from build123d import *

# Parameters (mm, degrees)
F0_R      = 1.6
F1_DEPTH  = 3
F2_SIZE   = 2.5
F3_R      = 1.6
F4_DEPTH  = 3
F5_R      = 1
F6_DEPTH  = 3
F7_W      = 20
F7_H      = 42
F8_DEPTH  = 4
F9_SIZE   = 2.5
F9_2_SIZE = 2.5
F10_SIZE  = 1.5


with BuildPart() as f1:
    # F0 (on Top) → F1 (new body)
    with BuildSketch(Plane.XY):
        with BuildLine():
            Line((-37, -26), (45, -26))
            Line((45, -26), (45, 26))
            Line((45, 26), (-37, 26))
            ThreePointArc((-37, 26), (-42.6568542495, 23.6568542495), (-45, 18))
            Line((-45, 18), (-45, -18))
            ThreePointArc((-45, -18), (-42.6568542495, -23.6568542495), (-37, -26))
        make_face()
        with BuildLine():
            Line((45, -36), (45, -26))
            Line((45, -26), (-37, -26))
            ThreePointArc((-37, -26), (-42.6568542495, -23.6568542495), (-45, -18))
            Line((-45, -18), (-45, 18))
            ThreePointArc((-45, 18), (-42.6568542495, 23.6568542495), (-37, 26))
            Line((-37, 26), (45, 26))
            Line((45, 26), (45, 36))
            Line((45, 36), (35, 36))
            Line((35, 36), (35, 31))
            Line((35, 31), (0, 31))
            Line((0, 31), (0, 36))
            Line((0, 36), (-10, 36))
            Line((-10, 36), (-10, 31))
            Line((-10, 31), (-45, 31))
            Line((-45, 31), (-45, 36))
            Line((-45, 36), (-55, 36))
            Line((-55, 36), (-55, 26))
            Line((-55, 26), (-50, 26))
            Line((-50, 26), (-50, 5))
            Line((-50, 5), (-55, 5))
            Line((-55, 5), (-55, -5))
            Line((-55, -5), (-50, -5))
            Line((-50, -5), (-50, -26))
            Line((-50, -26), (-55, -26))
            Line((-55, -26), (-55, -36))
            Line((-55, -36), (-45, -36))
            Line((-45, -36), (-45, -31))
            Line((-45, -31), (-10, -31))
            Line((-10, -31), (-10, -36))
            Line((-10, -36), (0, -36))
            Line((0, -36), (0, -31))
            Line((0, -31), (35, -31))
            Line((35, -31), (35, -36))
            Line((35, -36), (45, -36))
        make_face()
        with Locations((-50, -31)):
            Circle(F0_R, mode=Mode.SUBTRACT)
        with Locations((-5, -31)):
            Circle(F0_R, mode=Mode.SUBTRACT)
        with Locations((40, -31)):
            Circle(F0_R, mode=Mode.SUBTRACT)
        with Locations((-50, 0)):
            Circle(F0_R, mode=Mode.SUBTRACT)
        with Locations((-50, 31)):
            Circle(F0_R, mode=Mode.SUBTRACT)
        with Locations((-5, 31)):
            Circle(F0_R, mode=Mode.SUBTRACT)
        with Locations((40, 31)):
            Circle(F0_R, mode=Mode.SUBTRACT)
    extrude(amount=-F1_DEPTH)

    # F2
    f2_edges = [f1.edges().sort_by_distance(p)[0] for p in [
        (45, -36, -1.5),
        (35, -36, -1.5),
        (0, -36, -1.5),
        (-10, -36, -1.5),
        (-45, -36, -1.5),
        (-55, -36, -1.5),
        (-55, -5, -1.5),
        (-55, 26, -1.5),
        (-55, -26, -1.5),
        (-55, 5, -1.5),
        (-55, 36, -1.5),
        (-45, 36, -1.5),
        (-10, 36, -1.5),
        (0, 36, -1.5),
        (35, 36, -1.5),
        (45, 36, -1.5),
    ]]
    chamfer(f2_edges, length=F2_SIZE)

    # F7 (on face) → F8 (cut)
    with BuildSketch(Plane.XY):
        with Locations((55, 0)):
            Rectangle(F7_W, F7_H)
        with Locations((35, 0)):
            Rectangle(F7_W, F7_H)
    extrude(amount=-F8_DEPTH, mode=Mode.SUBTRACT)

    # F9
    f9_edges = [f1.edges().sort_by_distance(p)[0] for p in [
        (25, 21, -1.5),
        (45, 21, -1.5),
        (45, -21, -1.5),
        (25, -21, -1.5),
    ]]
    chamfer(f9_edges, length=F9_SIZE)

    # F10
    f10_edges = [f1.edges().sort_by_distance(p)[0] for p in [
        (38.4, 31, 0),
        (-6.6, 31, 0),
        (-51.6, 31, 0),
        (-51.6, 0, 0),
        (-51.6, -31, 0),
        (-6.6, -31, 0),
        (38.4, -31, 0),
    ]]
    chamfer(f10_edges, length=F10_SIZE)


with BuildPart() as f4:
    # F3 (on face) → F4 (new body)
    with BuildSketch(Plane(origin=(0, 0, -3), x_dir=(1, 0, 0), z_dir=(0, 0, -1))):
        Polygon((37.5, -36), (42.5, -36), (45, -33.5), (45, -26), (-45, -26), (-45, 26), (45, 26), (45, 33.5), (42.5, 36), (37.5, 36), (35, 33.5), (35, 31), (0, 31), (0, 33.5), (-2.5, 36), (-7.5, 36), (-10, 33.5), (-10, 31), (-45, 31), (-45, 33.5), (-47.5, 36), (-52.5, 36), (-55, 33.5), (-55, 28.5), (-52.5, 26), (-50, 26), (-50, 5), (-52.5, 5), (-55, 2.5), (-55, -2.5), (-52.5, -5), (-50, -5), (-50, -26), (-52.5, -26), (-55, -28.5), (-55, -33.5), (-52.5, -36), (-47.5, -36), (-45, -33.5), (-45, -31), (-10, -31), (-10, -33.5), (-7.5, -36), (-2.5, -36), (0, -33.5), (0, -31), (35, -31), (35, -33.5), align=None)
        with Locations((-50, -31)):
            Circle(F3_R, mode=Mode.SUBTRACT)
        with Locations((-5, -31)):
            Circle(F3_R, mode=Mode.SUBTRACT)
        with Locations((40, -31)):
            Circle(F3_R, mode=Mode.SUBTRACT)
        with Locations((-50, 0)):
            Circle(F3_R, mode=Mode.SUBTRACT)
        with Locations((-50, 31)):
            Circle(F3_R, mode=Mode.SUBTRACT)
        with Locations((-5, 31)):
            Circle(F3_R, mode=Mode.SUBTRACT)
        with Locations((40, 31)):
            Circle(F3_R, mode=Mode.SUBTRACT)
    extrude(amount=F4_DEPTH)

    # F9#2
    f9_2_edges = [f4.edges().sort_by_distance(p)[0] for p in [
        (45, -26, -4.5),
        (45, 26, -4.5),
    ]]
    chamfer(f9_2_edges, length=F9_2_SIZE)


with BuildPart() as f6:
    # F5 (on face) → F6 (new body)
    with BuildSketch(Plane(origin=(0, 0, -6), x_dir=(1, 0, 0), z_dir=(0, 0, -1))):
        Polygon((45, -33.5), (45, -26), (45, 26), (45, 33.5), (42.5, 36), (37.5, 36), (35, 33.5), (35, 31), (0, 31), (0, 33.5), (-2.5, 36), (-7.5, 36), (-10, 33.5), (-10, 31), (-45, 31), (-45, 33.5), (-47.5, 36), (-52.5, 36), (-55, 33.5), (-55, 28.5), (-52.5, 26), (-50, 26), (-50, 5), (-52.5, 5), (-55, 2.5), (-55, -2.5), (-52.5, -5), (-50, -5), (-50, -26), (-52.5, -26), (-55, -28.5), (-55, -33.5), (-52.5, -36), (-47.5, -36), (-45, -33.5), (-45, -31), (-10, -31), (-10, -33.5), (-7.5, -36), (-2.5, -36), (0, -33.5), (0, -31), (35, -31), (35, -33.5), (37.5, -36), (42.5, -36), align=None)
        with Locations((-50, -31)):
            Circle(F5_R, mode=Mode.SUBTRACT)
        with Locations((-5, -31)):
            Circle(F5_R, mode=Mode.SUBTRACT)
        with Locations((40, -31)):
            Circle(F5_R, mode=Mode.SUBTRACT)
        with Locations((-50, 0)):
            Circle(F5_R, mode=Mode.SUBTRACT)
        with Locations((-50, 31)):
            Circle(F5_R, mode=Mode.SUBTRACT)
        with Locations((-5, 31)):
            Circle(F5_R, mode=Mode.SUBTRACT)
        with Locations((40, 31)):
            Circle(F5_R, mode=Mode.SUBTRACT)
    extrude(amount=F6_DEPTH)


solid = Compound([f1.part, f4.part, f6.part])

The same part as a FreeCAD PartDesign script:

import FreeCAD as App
import Part
import Sketcher
from FreeCAD import Vector


def edges_at(feature, points):
    """Names of the edges that pass closest to the given points."""
    edges = feature.Shape.Edges
    near = lambda p: min(range(len(edges)), key=lambda i: edges[i].distToShape(Part.Vertex(*p))[0])
    return sorted({f"Edge{near(p) + 1}" for p in points})


def add_polygon(sketch, points):
    """Adds a closed chain of lines whose ends are joined by coincident constraints."""
    first, n = sketch.GeometryCount, len(points)
    for a, b in zip(points, points[1:] + points[:1]):
        sketch.addGeometry(Part.LineSegment(App.Vector(*a, 0), App.Vector(*b, 0)), False)
    for i in range(n):
        sketch.addConstraint(Sketcher.Constraint("Coincident", first + i, 2, first + (i + 1) % n, 1))

doc = App.newDocument("Part")
params = doc.addObject("Spreadsheet::Sheet", "Params")
for row, (alias, value) in enumerate([
    ("sketch1_diameter", "3.2 mm"),
    ("sketch1_width", "10 mm"),
    ("sketch1_width2", "35 mm"),
    ("sketch1_width3", "5 mm"),
    ("sketch1_height", "21 mm"),
    ("pad1_length", "3 mm"),
    ("chamfer_size", "2.5 mm"),
    ("sketch2_width", "40 mm"),
    ("sketch2_height", "42 mm"),
    ("pocket1_length", "4 mm"),
    ("chamfer2_size", "2.5 mm"),
    ("chamfer3_size", "1.5 mm"),
    ("sketch3_diameter", "3.2 mm"),
    ("sketch3_width", "5 mm"),
    ("sketch3_width2", "90 mm"),
    ("sketch3_width3", "35 mm"),
    ("sketch3_height", "52 mm"),
    ("pad2_length", "3 mm"),
    ("chamfer4_size", "2.5 mm"),
    ("sketch4_diameter", "2 mm"),
    ("sketch4_width", "5 mm"),
    ("sketch4_width2", "35 mm"),
    ("sketch4_height", "67 mm"),
    ("sketch4_height2", "21 mm"),
    ("pad3_length", "3 mm"),
], start=1):
    params.set(f"A{row}", alias)
    params.set(f"B{row}", "=" + value)
    params.setAlias(f"B{row}", alias)

body = doc.addObject("PartDesign::Body", "Body")

# Sketch on XY plane
sketch1 = body.newObject("Sketcher::SketchObject", "Sketch")
sketch1.AttachmentSupport = (doc.getObject("XY_Plane"), [""])
sketch1.MapMode = "FlatFace"
add_polygon(sketch1, [(45, 36), (35, 36), (35, 31), (0, 31), (0, 36), (-10, 36), (-10, 31), (-45, 31), (-45, 36), (-55, 36), (-55, 26), (-50, 26), (-50, 5), (-55, 5), (-55, -5), (-50, -5), (-50, -26), (-55, -26), (-55, -36), (-45, -36), (-45, -31), (-10, -31), (-10, -36), (0, -36), (0, -31), (35, -31), (35, -36), (45, -36)])  # lines 0-27
sketch1.addGeometry(Part.Circle(Vector(-50, -31, 0), Vector(0, 0, 1), 1.6), False)  # 28
sketch1.addGeometry(Part.Circle(Vector(-5, -31, 0), Vector(0, 0, 1), 1.6), False)  # 29
sketch1.addGeometry(Part.Circle(Vector(40, -31, 0), Vector(0, 0, 1), 1.6), False)  # 30
sketch1.addGeometry(Part.Circle(Vector(-50, 0, 0), Vector(0, 0, 1), 1.6), False)  # 31
sketch1.addGeometry(Part.Circle(Vector(-50, 31, 0), Vector(0, 0, 1), 1.6), False)  # 32
sketch1.addGeometry(Part.Circle(Vector(-5, 31, 0), Vector(0, 0, 1), 1.6), False)  # 33
sketch1.addGeometry(Part.Circle(Vector(40, 31, 0), Vector(0, 0, 1), 1.6), False)  # 34
sketch1.addConstraint([
    Sketcher.Constraint("Horizontal", 0),
    Sketcher.Constraint("Vertical", 1),
    Sketcher.Constraint("Horizontal", 2),
    Sketcher.Constraint("Vertical", 3),
    Sketcher.Constraint("Horizontal", 4),
    Sketcher.Constraint("Vertical", 5),
    Sketcher.Constraint("Horizontal", 6),
    Sketcher.Constraint("Vertical", 7),
    Sketcher.Constraint("Horizontal", 8),
    Sketcher.Constraint("Vertical", 9),
    Sketcher.Constraint("Horizontal", 10),
    Sketcher.Constraint("Vertical", 11),
    Sketcher.Constraint("Horizontal", 12),
    Sketcher.Constraint("Vertical", 13),
    Sketcher.Constraint("Horizontal", 14),
    Sketcher.Constraint("Vertical", 15),
    Sketcher.Constraint("Horizontal", 16),
    Sketcher.Constraint("Vertical", 17),
    Sketcher.Constraint("Horizontal", 18),
    Sketcher.Constraint("Vertical", 19),
    Sketcher.Constraint("Horizontal", 20),
    Sketcher.Constraint("Vertical", 21),
    Sketcher.Constraint("Horizontal", 22),
    Sketcher.Constraint("Vertical", 23),
    Sketcher.Constraint("Horizontal", 24),
    Sketcher.Constraint("Vertical", 25),
    Sketcher.Constraint("Horizontal", 26),
    Sketcher.Constraint("Vertical", 27),
    Sketcher.Constraint("Equal", 28, 29),
    Sketcher.Constraint("Equal", 29, 30),
    Sketcher.Constraint("Equal", 30, 31),
    Sketcher.Constraint("Equal", 31, 32),
    Sketcher.Constraint("Equal", 32, 33),
    Sketcher.Constraint("Equal", 33, 34),
    Sketcher.Constraint("Symmetric", 3, 2, 22, 2, -1, 1),
    Sketcher.Constraint("Symmetric", 7, 2, 26, 2, -1, 1),
    Sketcher.Constraint("Symmetric", 18, 2, 27, 2, -1, 1),
    Sketcher.Constraint("Symmetric", 28, 3, 32, 3, -1),
    Sketcher.Constraint("Symmetric", 29, 3, 33, 3, -1),
    Sketcher.Constraint("Symmetric", 30, 3, 34, 3, -1),
    Sketcher.Constraint("Symmetric", 11, 2, 14, 2, -1),
    Sketcher.Constraint("Symmetric", 9, 2, 16, 2, -1),
    Sketcher.Constraint("Symmetric", 5, 2, 20, 2, -1),
    Sketcher.Constraint("Symmetric", 2, 2, 23, 2, -1),
    Sketcher.Constraint("Symmetric", 0, 2, 25, 2, -1),
    Sketcher.Constraint("PointOnObject", 31, 3, -1),
    Sketcher.Constraint("Horizontal", 28, 3, 29, 3),
    Sketcher.Constraint("Horizontal", 29, 3, 30, 3),
    Sketcher.Constraint("Horizontal", 34, 3, 1, 2),
    Sketcher.Constraint("Horizontal", 0, 2, 3, 2),
    Sketcher.Constraint("Horizontal", 2, 2, 5, 2),
    Sketcher.Constraint("Vertical", 28, 3, 31, 3),
    Sketcher.Constraint("Vertical", 32, 3, 10, 2),
    Sketcher.Constraint("Vertical", 9, 2, 12, 2),
    Sketcher.Constraint("Equal", 0, 4),
    Sketcher.Constraint("Equal", 4, 8),
    Sketcher.Constraint("Equal", 16, 1),
    Sketcher.Constraint("Equal", 26, 9),
    Sketcher.Constraint("Equal", 9, 13),
    Sketcher.Constraint("Diameter", 28, 3.2),
    Sketcher.Constraint("DistanceX", 0, 2, 0, 1, 10.0),
    Sketcher.Constraint("DistanceX", 2, 2, 2, 1, 35.0),
    Sketcher.Constraint("DistanceX", 10, 1, 10, 2, 5.0),
    Sketcher.Constraint("DistanceY", 11, 2, 11, 1, 21.0),
    Sketcher.Constraint("DistanceX", 29, 3, -1, 1, 5.0),
    Sketcher.Constraint("DistanceX", -1, 1, 30, 3, 40.0),
])
sketch1.setExpression("Constraints[87]", "Params.sketch1_diameter")
sketch1.setExpression("Constraints[88]", "Params.sketch1_width")
sketch1.setExpression("Constraints[89]", "Params.sketch1_width2")
sketch1.setExpression("Constraints[90]", "Params.sketch1_width3")
sketch1.setExpression("Constraints[91]", "Params.sketch1_height")
pad1 = body.newObject("PartDesign::Pad", "Pad")
pad1.Profile = sketch1
pad1.setExpression("Length", "Params.pad1_length")
pad1.Reversed = True
doc.recompute()

chamfer = body.newObject("PartDesign::Chamfer", "Chamfer")
chamfer.Base = (pad1, edges_at(pad1, [
    (45, -36, -1.5),
    (35, -36, -1.5),
    (0, -36, -1.5),
    (-10, -36, -1.5),
    (-45, -36, -1.5),
    (-55, -36, -1.5),
    (-55, -5, -1.5),
    (-55, 26, -1.5),
    (-55, -26, -1.5),
    (-55, 5, -1.5),
    (-55, 36, -1.5),
    (-45, 36, -1.5),
    (-10, 36, -1.5),
    (0, 36, -1.5),
    (35, 36, -1.5),
    (45, 36, -1.5),
]))
chamfer.setExpression("Size", "Params.chamfer_size")

# Sketch on XY plane
sketch2 = body.newObject("Sketcher::SketchObject", "Sketch001")
sketch2.AttachmentSupport = (doc.getObject("XY_Plane"), [""])
sketch2.MapMode = "FlatFace"
add_polygon(sketch2, [(65, -21), (65, 21), (25, 21), (25, -21)])  # lines 0-3
sketch2.addConstraint([
    Sketcher.Constraint("Vertical", 0),
    Sketcher.Constraint("Horizontal", 1),
    Sketcher.Constraint("Vertical", 2),
    Sketcher.Constraint("Horizontal", 3),
    Sketcher.Constraint("DistanceX", 1, 2, 1, 1, 40.0),
    Sketcher.Constraint("DistanceY", 0, 1, 0, 2, 42.0),
    Sketcher.Constraint("DistanceX", -1, 1, 0, 2, 65.0),
    Sketcher.Constraint("DistanceY", -1, 1, 0, 2, 21.0),
])
sketch2.setExpression("Constraints[8]", "Params.sketch2_width")
sketch2.setExpression("Constraints[9]", "Params.sketch2_height")
pocket1 = body.newObject("PartDesign::Pocket", "Pocket")
pocket1.Profile = sketch2
pocket1.setExpression("Length", "Params.pocket1_length")
doc.recompute()

chamfer2 = body.newObject("PartDesign::Chamfer", "Chamfer001")
chamfer2.Base = (pocket1, edges_at(pocket1, [
    (25, 21, -1.5),
    (45, 21, -1.5),
    (45, -21, -1.5),
    (25, -21, -1.5),
]))
chamfer2.setExpression("Size", "Params.chamfer2_size")
doc.recompute()

chamfer3 = body.newObject("PartDesign::Chamfer", "Chamfer002")
chamfer3.Base = (chamfer2, edges_at(chamfer2, [
    (38.4, 31, 0),
    (-6.6, 31, 0),
    (-51.6, 31, 0),
    (-51.6, 0, 0),
    (-51.6, -31, 0),
    (-6.6, -31, 0),
    (38.4, -31, 0),
]))
chamfer3.setExpression("Size", "Params.chamfer3_size")
body2 = doc.addObject("PartDesign::Body", "Body001")

# Sketch on XY plane
sketch3 = body2.newObject("Sketcher::SketchObject", "Sketch002")
sketch3.AttachmentSupport = (doc.getObject("XY_Plane001"), [""])
sketch3.MapMode = "FlatFace"
sketch3.AttachmentOffset = App.Placement(Vector(0, 0, -3), App.Rotation())
add_polygon(sketch3, [(37.5, 36), (42.5, 36), (45, 33.5), (45, 26), (-45, 26), (-45, -26), (45, -26), (45, -33.5), (42.5, -36), (37.5, -36), (35, -33.5), (35, -31), (0, -31), (0, -33.5), (-2.5, -36), (-7.5, -36), (-10, -33.5), (-10, -31), (-45, -31), (-45, -33.5), (-47.5, -36), (-52.5, -36), (-55, -33.5), (-55, -28.5), (-52.5, -26), (-50, -26), (-50, -5), (-52.5, -5), (-55, -2.5), (-55, 2.5), (-52.5, 5), (-50, 5), (-50, 26), (-52.5, 26), (-55, 28.5), (-55, 33.5), (-52.5, 36), (-47.5, 36), (-45, 33.5), (-45, 31), (-10, 31), (-10, 33.5), (-7.5, 36), (-2.5, 36), (0, 33.5), (0, 31), (35, 31), (35, 33.5)])  # lines 0-47
sketch3.addGeometry(Part.Circle(Vector(-50, 31, 0), Vector(0, 0, 1), 1.6), False)  # 48
sketch3.addGeometry(Part.Circle(Vector(-5, 31, 0), Vector(0, 0, 1), 1.6), False)  # 49
sketch3.addGeometry(Part.Circle(Vector(40, 31, 0), Vector(0, 0, 1), 1.6), False)  # 50
sketch3.addGeometry(Part.Circle(Vector(-50, 0, 0), Vector(0, 0, 1), 1.6), False)  # 51
sketch3.addGeometry(Part.Circle(Vector(-50, -31, 0), Vector(0, 0, 1), 1.6), False)  # 52
sketch3.addGeometry(Part.Circle(Vector(-5, -31, 0), Vector(0, 0, 1), 1.6), False)  # 53
sketch3.addGeometry(Part.Circle(Vector(40, -31, 0), Vector(0, 0, 1), 1.6), False)  # 54
sketch3.addConstraint([
    Sketcher.Constraint("Horizontal", 0),
    Sketcher.Constraint("Vertical", 2),
    Sketcher.Constraint("Horizontal", 3),
    Sketcher.Constraint("Vertical", 4),
    Sketcher.Constraint("Horizontal", 5),
    Sketcher.Constraint("Vertical", 6),
    Sketcher.Constraint("Horizontal", 8),
    Sketcher.Constraint("Vertical", 10),
    Sketcher.Constraint("Horizontal", 11),
    Sketcher.Constraint("Vertical", 12),
    Sketcher.Constraint("Horizontal", 14),
    Sketcher.Constraint("Vertical", 16),
    Sketcher.Constraint("Horizontal", 17),
    Sketcher.Constraint("Vertical", 18),
    Sketcher.Constraint("Horizontal", 20),
    Sketcher.Constraint("Vertical", 22),
    Sketcher.Constraint("Horizontal", 24),
    Sketcher.Constraint("Vertical", 25),
    Sketcher.Constraint("Horizontal", 26),
    Sketcher.Constraint("Vertical", 28),
    Sketcher.Constraint("Horizontal", 30),
    Sketcher.Constraint("Vertical", 31),
    Sketcher.Constraint("Horizontal", 32),
    Sketcher.Constraint("Vertical", 34),
    Sketcher.Constraint("Horizontal", 36),
    Sketcher.Constraint("Vertical", 38),
    Sketcher.Constraint("Horizontal", 39),
    Sketcher.Constraint("Vertical", 40),
    Sketcher.Constraint("Horizontal", 42),
    Sketcher.Constraint("Vertical", 44),
    Sketcher.Constraint("Horizontal", 45),
    Sketcher.Constraint("Vertical", 46),
    Sketcher.Constraint("Equal", 48, 49),
    Sketcher.Constraint("Equal", 49, 50),
    Sketcher.Constraint("Equal", 50, 51),
    Sketcher.Constraint("Equal", 51, 52),
    Sketcher.Constraint("Equal", 52, 53),
    Sketcher.Constraint("Equal", 53, 54),
    Sketcher.Constraint("Symmetric", 2, 2, 4, 2, -1, 1),
    Sketcher.Constraint("Symmetric", 1, 2, 18, 2, -1, 1),
    Sketcher.Constraint("Symmetric", 6, 2, 37, 2, -1, 1),
    Sketcher.Constraint("Symmetric", 12, 2, 43, 2, -1, 1),
    Sketcher.Constraint("Symmetric", 6, 2, 18, 2, -2),
    Sketcher.Constraint("Symmetric", 48, 3, 52, 3, -1),
    Sketcher.Constraint("Symmetric", 49, 3, 53, 3, -1),
    Sketcher.Constraint("Symmetric", 50, 3, 54, 3, -1),
    Sketcher.Constraint("Symmetric", 0, 2, 7, 2, -1),
    Sketcher.Constraint("Symmetric", 26, 2, 29, 2, -1),
    Sketcher.Constraint("Symmetric", 24, 2, 31, 2, -1),
    Sketcher.Constraint("Symmetric", 22, 2, 33, 2, -1),
    Sketcher.Constraint("Symmetric", 20, 2, 35, 2, -1),
    Sketcher.Constraint("Symmetric", 16, 2, 39, 2, -1),
    Sketcher.Constraint("Symmetric", 14, 2, 41, 2, -1),
    Sketcher.Constraint("Symmetric", 11, 2, 44, 2, -1),
    Sketcher.Constraint("Symmetric", 9, 2, 46, 2, -1),
    Sketcher.Constraint("PointOnObject", 51, 3, -1),
    Sketcher.Constraint("Perpendicular", 1, 7),
    Sketcher.Constraint("Perpendicular", 7, 9),
    Sketcher.Constraint("Perpendicular", 9, 13),
    Sketcher.Constraint("Perpendicular", 13, 15),
    Sketcher.Constraint("Perpendicular", 15, 19),
    Sketcher.Constraint("Perpendicular", 19, 21),
    Sketcher.Constraint("Perpendicular", 21, 23),
    Sketcher.Constraint("Perpendicular", 23, 27),
    Sketcher.Constraint("Perpendicular", 27, 29),
    Sketcher.Constraint("Perpendicular", 29, 33),
    Sketcher.Constraint("Perpendicular", 33, 35),
    Sketcher.Constraint("Perpendicular", 35, 37),
    Sketcher.Constraint("Perpendicular", 37, 41),
    Sketcher.Constraint("Perpendicular", 41, 43),
    Sketcher.Constraint("Perpendicular", 43, 47),
    Sketcher.Constraint("Horizontal", 48, 3, 49, 3),
    Sketcher.Constraint("Horizontal", 49, 3, 50, 3),
    Sketcher.Constraint("Horizontal", 6, 2, 9, 2),
    Sketcher.Constraint("Horizontal", 54, 3, 10, 2),
    Sketcher.Constraint("Horizontal", 9, 2, 12, 2),
    Sketcher.Constraint("Horizontal", 8, 2, 13, 2),
    Sketcher.Constraint("Horizontal", 12, 2, 15, 2),
    Sketcher.Constraint("Horizontal", 11, 2, 16, 2),
    Sketcher.Constraint("Horizontal", 14, 2, 19, 2),
    Sketcher.Constraint("Horizontal", 18, 2, 21, 2),
    Sketcher.Constraint("Horizontal", 5, 2, 23, 2),
    Sketcher.Constraint("Vertical", 48, 3, 51, 3),
    Sketcher.Constraint("Vertical", 20, 2, 23, 2),
    Sketcher.Constraint("Vertical", 52, 3, 24, 2),
    Sketcher.Constraint("Vertical", 23, 2, 26, 2),
    Sketcher.Constraint("Vertical", 22, 2, 27, 2),
    Sketcher.Constraint("Equal", 8, 14),
    Sketcher.Constraint("Equal", 14, 20),
    Sketcher.Constraint("Equal", 32, 10),
    Sketcher.Constraint("Equal", 42, 22),
    Sketcher.Constraint("Equal", 22, 28),
    Sketcher.Constraint("Diameter", 48, 3.2),
    Sketcher.Constraint("DistanceX", 0, 1, 0, 2, 5.0),
    Sketcher.Constraint("DistanceX", 3, 2, 3, 1, 90.0),
    Sketcher.Constraint("DistanceX", 11, 2, 11, 1, 35.0),
    Sketcher.Constraint("DistanceY", 4, 2, 4, 1, 52.0),
    Sketcher.Constraint("DistanceX", 24, 1, 24, 2, 2.5),
    Sketcher.Constraint("DistanceX", 49, 3, -1, 1, 5.0),
    Sketcher.Constraint("DistanceX", -1, 1, 50, 3, 40.0),
])
sketch3.setExpression("Constraints[140]", "Params.sketch3_diameter")
sketch3.setExpression("Constraints[141]", "Params.sketch3_width")
sketch3.setExpression("Constraints[142]", "Params.sketch3_width2")
sketch3.setExpression("Constraints[143]", "Params.sketch3_width3")
sketch3.setExpression("Constraints[144]", "Params.sketch3_height")
pad2 = body2.newObject("PartDesign::Pad", "Pad001")
pad2.Profile = sketch3
pad2.setExpression("Length", "Params.pad2_length")
pad2.Reversed = True
doc.recompute()

chamfer4 = body2.newObject("PartDesign::Chamfer", "Chamfer003")
chamfer4.Base = (pad2, edges_at(pad2, [(45, -26, -4.5), (45, 26, -4.5)]))
chamfer4.setExpression("Size", "Params.chamfer4_size")
body3 = doc.addObject("PartDesign::Body", "Body002")

# Sketch on XY plane
sketch4 = body3.newObject("Sketcher::SketchObject", "Sketch003")
sketch4.AttachmentSupport = (doc.getObject("XY_Plane002"), [""])
sketch4.MapMode = "FlatFace"
sketch4.AttachmentOffset = App.Placement(Vector(0, 0, -6), App.Rotation())
add_polygon(sketch4, [(45, 33.5), (45, -33.5), (42.5, -36), (37.5, -36), (35, -33.5), (35, -31), (0, -31), (0, -33.5), (-2.5, -36), (-7.5, -36), (-10, -33.5), (-10, -31), (-45, -31), (-45, -33.5), (-47.5, -36), (-52.5, -36), (-55, -33.5), (-55, -28.5), (-52.5, -26), (-50, -26), (-50, -5), (-52.5, -5), (-55, -2.5), (-55, 2.5), (-52.5, 5), (-50, 5), (-50, 26), (-52.5, 26), (-55, 28.5), (-55, 33.5), (-52.5, 36), (-47.5, 36), (-45, 33.5), (-45, 31), (-10, 31), (-10, 33.5), (-7.5, 36), (-2.5, 36), (0, 33.5), (0, 31), (35, 31), (35, 33.5), (37.5, 36), (42.5, 36)])  # lines 0-43
sketch4.addGeometry(Part.Circle(Vector(-50, 31, 0), Vector(0, 0, 1), 1), False)  # 44
sketch4.addGeometry(Part.Circle(Vector(-5, 31, 0), Vector(0, 0, 1), 1), False)  # 45
sketch4.addGeometry(Part.Circle(Vector(40, 31, 0), Vector(0, 0, 1), 1), False)  # 46
sketch4.addGeometry(Part.Circle(Vector(-50, 0, 0), Vector(0, 0, 1), 1), False)  # 47
sketch4.addGeometry(Part.Circle(Vector(-50, -31, 0), Vector(0, 0, 1), 1), False)  # 48
sketch4.addGeometry(Part.Circle(Vector(-5, -31, 0), Vector(0, 0, 1), 1), False)  # 49
sketch4.addGeometry(Part.Circle(Vector(40, -31, 0), Vector(0, 0, 1), 1), False)  # 50
sketch4.addConstraint([
    Sketcher.Constraint("Vertical", 0),
    Sketcher.Constraint("Horizontal", 2),
    Sketcher.Constraint("Vertical", 4),
    Sketcher.Constraint("Horizontal", 5),
    Sketcher.Constraint("Vertical", 6),
    Sketcher.Constraint("Horizontal", 8),
    Sketcher.Constraint("Vertical", 10),
    Sketcher.Constraint("Horizontal", 11),
    Sketcher.Constraint("Vertical", 12),
    Sketcher.Constraint("Horizontal", 14),
    Sketcher.Constraint("Vertical", 16),
    Sketcher.Constraint("Horizontal", 18),
    Sketcher.Constraint("Vertical", 19),
    Sketcher.Constraint("Horizontal", 20),
    Sketcher.Constraint("Vertical", 22),
    Sketcher.Constraint("Horizontal", 24),
    Sketcher.Constraint("Vertical", 25),
    Sketcher.Constraint("Horizontal", 26),
    Sketcher.Constraint("Vertical", 28),
    Sketcher.Constraint("Horizontal", 30),
    Sketcher.Constraint("Vertical", 32),
    Sketcher.Constraint("Horizontal", 33),
    Sketcher.Constraint("Vertical", 34),
    Sketcher.Constraint("Horizontal", 36),
    Sketcher.Constraint("Vertical", 38),
    Sketcher.Constraint("Horizontal", 39),
    Sketcher.Constraint("Vertical", 40),
    Sketcher.Constraint("Horizontal", 42),
    Sketcher.Constraint("Equal", 44, 45),
    Sketcher.Constraint("Equal", 45, 46),
    Sketcher.Constraint("Equal", 46, 47),
    Sketcher.Constraint("Equal", 47, 48),
    Sketcher.Constraint("Equal", 48, 49),
    Sketcher.Constraint("Equal", 49, 50),
    Sketcher.Constraint("Symmetric", 0, 2, 31, 2, -1, 1),
    Sketcher.Constraint("Symmetric", 6, 2, 37, 2, -1, 1),
    Sketcher.Constraint("Symmetric", 12, 2, 43, 2, -1, 1),
    Sketcher.Constraint("Symmetric", 44, 3, 48, 3, -1),
    Sketcher.Constraint("Symmetric", 45, 3, 49, 3, -1),
    Sketcher.Constraint("Symmetric", 46, 3, 50, 3, -1),
    Sketcher.Constraint("Symmetric", 20, 2, 23, 2, -1),
    Sketcher.Constraint("Symmetric", 18, 2, 25, 2, -1),
    Sketcher.Constraint("Symmetric", 16, 2, 27, 2, -1),
    Sketcher.Constraint("Symmetric", 14, 2, 29, 2, -1),
    Sketcher.Constraint("Symmetric", 10, 2, 33, 2, -1),
    Sketcher.Constraint("Symmetric", 8, 2, 35, 2, -1),
    Sketcher.Constraint("Symmetric", 5, 2, 38, 2, -1),
    Sketcher.Constraint("Symmetric", 3, 2, 40, 2, -1),
    Sketcher.Constraint("Symmetric", 2, 2, 41, 2, -1),
    Sketcher.Constraint("PointOnObject", 47, 3, -1),
    Sketcher.Constraint("Perpendicular", 1, 3),
    Sketcher.Constraint("Perpendicular", 3, 7),
    Sketcher.Constraint("Perpendicular", 7, 9),
    Sketcher.Constraint("Perpendicular", 9, 13),
    Sketcher.Constraint("Perpendicular", 13, 15),
    Sketcher.Constraint("Perpendicular", 15, 17),
    Sketcher.Constraint("Perpendicular", 17, 21),
    Sketcher.Constraint("Perpendicular", 21, 23),
    Sketcher.Constraint("Perpendicular", 23, 27),
    Sketcher.Constraint("Perpendicular", 27, 29),
    Sketcher.Constraint("Perpendicular", 29, 31),
    Sketcher.Constraint("Perpendicular", 31, 35),
    Sketcher.Constraint("Perpendicular", 35, 37),
    Sketcher.Constraint("Perpendicular", 37, 41),
    Sketcher.Constraint("Perpendicular", 41, 43),
    Sketcher.Constraint("Horizontal", 44, 3, 45, 3),
    Sketcher.Constraint("Horizontal", 45, 3, 46, 3),
    Sketcher.Constraint("Horizontal", 0, 2, 3, 2),
    Sketcher.Constraint("Horizontal", 50, 3, 4, 2),
    Sketcher.Constraint("Horizontal", 3, 2, 6, 2),
    Sketcher.Constraint("Horizontal", 2, 2, 7, 2),
    Sketcher.Constraint("Horizontal", 6, 2, 9, 2),
    Sketcher.Constraint("Horizontal", 5, 2, 10, 2),
    Sketcher.Constraint("Horizontal", 9, 2, 12, 2),
    Sketcher.Constraint("Horizontal", 8, 2, 13, 2),
    Sketcher.Constraint("Horizontal", 12, 2, 15, 2),
    Sketcher.Constraint("Vertical", 44, 3, 47, 3),
    Sketcher.Constraint("Vertical", 14, 2, 17, 2),
    Sketcher.Constraint("Vertical", 48, 3, 18, 2),
    Sketcher.Constraint("Vertical", 17, 2, 20, 2),
    Sketcher.Constraint("Vertical", 16, 2, 21, 2),
    Sketcher.Constraint("Equal", 2, 8),
    Sketcher.Constraint("Equal", 8, 14),
    Sketcher.Constraint("Equal", 26, 4),
    Sketcher.Constraint("Equal", 42, 16),
    Sketcher.Constraint("Equal", 16, 22),
    Sketcher.Constraint("Diameter", 44, 2.0),
    Sketcher.Constraint("DistanceX", 2, 2, 2, 1, 5.0),
    Sketcher.Constraint("DistanceX", 5, 2, 5, 1, 35.0),
    Sketcher.Constraint("DistanceY", 0, 2, 0, 1, 67.0),
    Sketcher.Constraint("DistanceY", 19, 1, 19, 2, 21.0),
    Sketcher.Constraint("DistanceX", 18, 1, 18, 2, 2.5),
    Sketcher.Constraint("DistanceX", 45, 3, -1, 1, 5.0),
    Sketcher.Constraint("DistanceX", -1, 1, 46, 3, 40.0),
])
sketch4.setExpression("Constraints[130]", "Params.sketch4_diameter")
sketch4.setExpression("Constraints[131]", "Params.sketch4_width")
sketch4.setExpression("Constraints[132]", "Params.sketch4_width2")
sketch4.setExpression("Constraints[133]", "Params.sketch4_height")
sketch4.setExpression("Constraints[134]", "Params.sketch4_height2")
pad3 = body3.newObject("PartDesign::Pad", "Pad002")
pad3.Profile = sketch4
pad3.setExpression("Length", "Params.pad3_length")
pad3.Reversed = True

doc.recompute()
